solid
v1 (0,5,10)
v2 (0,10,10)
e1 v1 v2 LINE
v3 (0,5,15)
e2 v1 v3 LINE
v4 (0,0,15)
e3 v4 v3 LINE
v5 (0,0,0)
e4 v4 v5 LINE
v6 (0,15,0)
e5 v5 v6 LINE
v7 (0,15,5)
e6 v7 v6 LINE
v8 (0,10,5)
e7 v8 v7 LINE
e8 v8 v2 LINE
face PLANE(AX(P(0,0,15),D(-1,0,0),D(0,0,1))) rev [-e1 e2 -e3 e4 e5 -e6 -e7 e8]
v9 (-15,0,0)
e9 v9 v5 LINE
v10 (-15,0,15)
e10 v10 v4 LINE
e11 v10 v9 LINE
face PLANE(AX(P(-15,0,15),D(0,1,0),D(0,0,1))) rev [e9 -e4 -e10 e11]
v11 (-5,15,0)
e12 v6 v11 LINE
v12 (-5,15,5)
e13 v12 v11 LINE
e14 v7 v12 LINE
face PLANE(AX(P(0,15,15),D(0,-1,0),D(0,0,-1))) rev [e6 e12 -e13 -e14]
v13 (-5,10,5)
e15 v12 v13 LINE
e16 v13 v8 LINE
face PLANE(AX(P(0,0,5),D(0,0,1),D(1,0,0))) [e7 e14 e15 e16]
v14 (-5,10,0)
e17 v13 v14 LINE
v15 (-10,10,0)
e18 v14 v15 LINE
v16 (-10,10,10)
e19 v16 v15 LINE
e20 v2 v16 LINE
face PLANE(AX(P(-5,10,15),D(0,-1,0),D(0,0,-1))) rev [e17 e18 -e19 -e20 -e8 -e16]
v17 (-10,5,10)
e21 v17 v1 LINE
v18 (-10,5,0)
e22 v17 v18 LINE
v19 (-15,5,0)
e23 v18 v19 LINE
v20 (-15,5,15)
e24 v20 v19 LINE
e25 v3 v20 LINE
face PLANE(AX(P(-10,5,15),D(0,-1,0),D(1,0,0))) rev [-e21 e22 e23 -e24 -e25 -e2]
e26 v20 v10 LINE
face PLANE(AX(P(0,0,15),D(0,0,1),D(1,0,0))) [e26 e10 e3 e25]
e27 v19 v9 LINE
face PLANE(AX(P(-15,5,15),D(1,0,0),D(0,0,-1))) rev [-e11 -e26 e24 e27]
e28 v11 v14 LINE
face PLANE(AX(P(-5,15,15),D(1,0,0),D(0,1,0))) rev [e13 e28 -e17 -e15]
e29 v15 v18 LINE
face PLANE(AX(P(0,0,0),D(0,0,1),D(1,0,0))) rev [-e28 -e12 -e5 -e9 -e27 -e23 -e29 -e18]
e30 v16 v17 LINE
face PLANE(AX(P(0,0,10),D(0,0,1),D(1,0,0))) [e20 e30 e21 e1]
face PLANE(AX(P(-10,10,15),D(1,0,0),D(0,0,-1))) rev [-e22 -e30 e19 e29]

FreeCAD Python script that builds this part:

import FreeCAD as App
import Part
import Sketcher

V = App.Vector


def add_polygon(sketch, points):
    """Adds a closed chain of lines whose ends are joined by coincident constraints."""
    first, n = sketch.GeometryCount, len(points)
    for a, b in zip(points, points[1:] + points[:1]):
        sketch.addGeometry(Part.LineSegment(App.Vector(*a, 0), App.Vector(*b, 0)), False)
    for i in range(n):
        sketch.addConstraint(Sketcher.Constraint("Coincident", first + i, 2, first + (i + 1) % n, 1))

doc = App.newDocument("Part")
body = doc.addObject("PartDesign::Body", "Body")

# Sketch on XY plane
sketch1 = body.newObject("Sketcher::SketchObject", "Sketch")
sketch1.AttachmentSupport = (doc.getObject("XY_Plane"), [""])
sketch1.MapMode = "FlatFace"
add_polygon(sketch1, [(0, 0), (0, 15), (-5, 15), (-5, 10), (-10, 10), (-10, 5), (-15, 5), (-15, 0)])  # lines 0-7
sketch1.addConstraint([
    Sketcher.Constraint("Vertical", 0),
    Sketcher.Constraint("Horizontal", 1),
    Sketcher.Constraint("Vertical", 2),
    Sketcher.Constraint("Horizontal", 3),
    Sketcher.Constraint("Vertical", 4),
    Sketcher.Constraint("Horizontal", 5),
    Sketcher.Constraint("Vertical", 6),
    Sketcher.Constraint("Horizontal", 7),
    Sketcher.Constraint("Coincident", 7, 2, -1, 1),
    Sketcher.Constraint("Equal", 1, 3),
    Sketcher.Constraint("Equal", 3, 5),
    Sketcher.Constraint("Equal", 7, 0),
    Sketcher.Constraint("Equal", 5, 2),
    Sketcher.Constraint("Equal", 2, 4),
    Sketcher.Constraint("DistanceX", 1, 2, 1, 1, 5.0),
])
pad1 = body.newObject("PartDesign::Pad", "Pad")
pad1.Profile = sketch1
pad1.Length = 15

# Sketch on XY plane
sketch2 = body.newObject("Sketcher::SketchObject", "Sketch001")
sketch2.AttachmentSupport = (doc.getObject("XY_Plane"), [""])
sketch2.MapMode = "FlatFace"
sketch2.AttachmentOffset = App.Placement(V(0, 0, 15), App.Rotation())
add_polygon(sketch2, [(-10, 10), (-10, 5), (0, 5), (0, 10)])  # lines 0-3
sketch2.addConstraint([
    Sketcher.Constraint("Vertical", 0),
    Sketcher.Constraint("Horizontal", 1),
    Sketcher.Constraint("Vertical", 2),
    Sketcher.Constraint("Horizontal", 3),
    Sketcher.Constraint("PointOnObject", 1, 2, -2),
    Sketcher.Constraint("DistanceX", 1, 1, 1, 2, 10.0),
    Sketcher.Constraint("DistanceY", 0, 2, 0, 1, 5.0),
    Sketcher.Constraint("DistanceY", -1, 1, 0, 2, 5.0),
])
pocket1 = body.newObject("PartDesign::Pocket", "Pocket")
pocket1.Profile = sketch2
pocket1.Length = 5

# Sketch on XY plane
sketch3 = body.newObject("Sketcher::SketchObject", "Sketch002")
sketch3.AttachmentSupport = (doc.getObject("XY_Plane"), [""])
sketch3.MapMode = "FlatFace"
sketch3.AttachmentOffset = App.Placement(V(0, 0, 15), App.Rotation())
add_polygon(sketch3, [(-5, 15), (-5, 10), (0, 10), (0, 15)])  # lines 0-3
sketch3.addConstraint([
    Sketcher.Constraint("Vertical", 0),
    Sketcher.Constraint("Horizontal", 1),
    Sketcher.Constraint("Vertical", 2),
    Sketcher.Constraint("Horizontal", 3),
    Sketcher.Constraint("PointOnObject", 1, 2, -2),
    Sketcher.Constraint("Equal", 3, 0),
    Sketcher.Constraint("DistanceX", 1, 1, 1, 2, 5.0),
    Sketcher.Constraint("DistanceY", -1, 1, 0, 2, 10.0),
])
pocket2 = body.newObject("PartDesign::Pocket", "Pocket001")
pocket2.Profile = sketch3
pocket2.Length = 10

doc.recompute()
